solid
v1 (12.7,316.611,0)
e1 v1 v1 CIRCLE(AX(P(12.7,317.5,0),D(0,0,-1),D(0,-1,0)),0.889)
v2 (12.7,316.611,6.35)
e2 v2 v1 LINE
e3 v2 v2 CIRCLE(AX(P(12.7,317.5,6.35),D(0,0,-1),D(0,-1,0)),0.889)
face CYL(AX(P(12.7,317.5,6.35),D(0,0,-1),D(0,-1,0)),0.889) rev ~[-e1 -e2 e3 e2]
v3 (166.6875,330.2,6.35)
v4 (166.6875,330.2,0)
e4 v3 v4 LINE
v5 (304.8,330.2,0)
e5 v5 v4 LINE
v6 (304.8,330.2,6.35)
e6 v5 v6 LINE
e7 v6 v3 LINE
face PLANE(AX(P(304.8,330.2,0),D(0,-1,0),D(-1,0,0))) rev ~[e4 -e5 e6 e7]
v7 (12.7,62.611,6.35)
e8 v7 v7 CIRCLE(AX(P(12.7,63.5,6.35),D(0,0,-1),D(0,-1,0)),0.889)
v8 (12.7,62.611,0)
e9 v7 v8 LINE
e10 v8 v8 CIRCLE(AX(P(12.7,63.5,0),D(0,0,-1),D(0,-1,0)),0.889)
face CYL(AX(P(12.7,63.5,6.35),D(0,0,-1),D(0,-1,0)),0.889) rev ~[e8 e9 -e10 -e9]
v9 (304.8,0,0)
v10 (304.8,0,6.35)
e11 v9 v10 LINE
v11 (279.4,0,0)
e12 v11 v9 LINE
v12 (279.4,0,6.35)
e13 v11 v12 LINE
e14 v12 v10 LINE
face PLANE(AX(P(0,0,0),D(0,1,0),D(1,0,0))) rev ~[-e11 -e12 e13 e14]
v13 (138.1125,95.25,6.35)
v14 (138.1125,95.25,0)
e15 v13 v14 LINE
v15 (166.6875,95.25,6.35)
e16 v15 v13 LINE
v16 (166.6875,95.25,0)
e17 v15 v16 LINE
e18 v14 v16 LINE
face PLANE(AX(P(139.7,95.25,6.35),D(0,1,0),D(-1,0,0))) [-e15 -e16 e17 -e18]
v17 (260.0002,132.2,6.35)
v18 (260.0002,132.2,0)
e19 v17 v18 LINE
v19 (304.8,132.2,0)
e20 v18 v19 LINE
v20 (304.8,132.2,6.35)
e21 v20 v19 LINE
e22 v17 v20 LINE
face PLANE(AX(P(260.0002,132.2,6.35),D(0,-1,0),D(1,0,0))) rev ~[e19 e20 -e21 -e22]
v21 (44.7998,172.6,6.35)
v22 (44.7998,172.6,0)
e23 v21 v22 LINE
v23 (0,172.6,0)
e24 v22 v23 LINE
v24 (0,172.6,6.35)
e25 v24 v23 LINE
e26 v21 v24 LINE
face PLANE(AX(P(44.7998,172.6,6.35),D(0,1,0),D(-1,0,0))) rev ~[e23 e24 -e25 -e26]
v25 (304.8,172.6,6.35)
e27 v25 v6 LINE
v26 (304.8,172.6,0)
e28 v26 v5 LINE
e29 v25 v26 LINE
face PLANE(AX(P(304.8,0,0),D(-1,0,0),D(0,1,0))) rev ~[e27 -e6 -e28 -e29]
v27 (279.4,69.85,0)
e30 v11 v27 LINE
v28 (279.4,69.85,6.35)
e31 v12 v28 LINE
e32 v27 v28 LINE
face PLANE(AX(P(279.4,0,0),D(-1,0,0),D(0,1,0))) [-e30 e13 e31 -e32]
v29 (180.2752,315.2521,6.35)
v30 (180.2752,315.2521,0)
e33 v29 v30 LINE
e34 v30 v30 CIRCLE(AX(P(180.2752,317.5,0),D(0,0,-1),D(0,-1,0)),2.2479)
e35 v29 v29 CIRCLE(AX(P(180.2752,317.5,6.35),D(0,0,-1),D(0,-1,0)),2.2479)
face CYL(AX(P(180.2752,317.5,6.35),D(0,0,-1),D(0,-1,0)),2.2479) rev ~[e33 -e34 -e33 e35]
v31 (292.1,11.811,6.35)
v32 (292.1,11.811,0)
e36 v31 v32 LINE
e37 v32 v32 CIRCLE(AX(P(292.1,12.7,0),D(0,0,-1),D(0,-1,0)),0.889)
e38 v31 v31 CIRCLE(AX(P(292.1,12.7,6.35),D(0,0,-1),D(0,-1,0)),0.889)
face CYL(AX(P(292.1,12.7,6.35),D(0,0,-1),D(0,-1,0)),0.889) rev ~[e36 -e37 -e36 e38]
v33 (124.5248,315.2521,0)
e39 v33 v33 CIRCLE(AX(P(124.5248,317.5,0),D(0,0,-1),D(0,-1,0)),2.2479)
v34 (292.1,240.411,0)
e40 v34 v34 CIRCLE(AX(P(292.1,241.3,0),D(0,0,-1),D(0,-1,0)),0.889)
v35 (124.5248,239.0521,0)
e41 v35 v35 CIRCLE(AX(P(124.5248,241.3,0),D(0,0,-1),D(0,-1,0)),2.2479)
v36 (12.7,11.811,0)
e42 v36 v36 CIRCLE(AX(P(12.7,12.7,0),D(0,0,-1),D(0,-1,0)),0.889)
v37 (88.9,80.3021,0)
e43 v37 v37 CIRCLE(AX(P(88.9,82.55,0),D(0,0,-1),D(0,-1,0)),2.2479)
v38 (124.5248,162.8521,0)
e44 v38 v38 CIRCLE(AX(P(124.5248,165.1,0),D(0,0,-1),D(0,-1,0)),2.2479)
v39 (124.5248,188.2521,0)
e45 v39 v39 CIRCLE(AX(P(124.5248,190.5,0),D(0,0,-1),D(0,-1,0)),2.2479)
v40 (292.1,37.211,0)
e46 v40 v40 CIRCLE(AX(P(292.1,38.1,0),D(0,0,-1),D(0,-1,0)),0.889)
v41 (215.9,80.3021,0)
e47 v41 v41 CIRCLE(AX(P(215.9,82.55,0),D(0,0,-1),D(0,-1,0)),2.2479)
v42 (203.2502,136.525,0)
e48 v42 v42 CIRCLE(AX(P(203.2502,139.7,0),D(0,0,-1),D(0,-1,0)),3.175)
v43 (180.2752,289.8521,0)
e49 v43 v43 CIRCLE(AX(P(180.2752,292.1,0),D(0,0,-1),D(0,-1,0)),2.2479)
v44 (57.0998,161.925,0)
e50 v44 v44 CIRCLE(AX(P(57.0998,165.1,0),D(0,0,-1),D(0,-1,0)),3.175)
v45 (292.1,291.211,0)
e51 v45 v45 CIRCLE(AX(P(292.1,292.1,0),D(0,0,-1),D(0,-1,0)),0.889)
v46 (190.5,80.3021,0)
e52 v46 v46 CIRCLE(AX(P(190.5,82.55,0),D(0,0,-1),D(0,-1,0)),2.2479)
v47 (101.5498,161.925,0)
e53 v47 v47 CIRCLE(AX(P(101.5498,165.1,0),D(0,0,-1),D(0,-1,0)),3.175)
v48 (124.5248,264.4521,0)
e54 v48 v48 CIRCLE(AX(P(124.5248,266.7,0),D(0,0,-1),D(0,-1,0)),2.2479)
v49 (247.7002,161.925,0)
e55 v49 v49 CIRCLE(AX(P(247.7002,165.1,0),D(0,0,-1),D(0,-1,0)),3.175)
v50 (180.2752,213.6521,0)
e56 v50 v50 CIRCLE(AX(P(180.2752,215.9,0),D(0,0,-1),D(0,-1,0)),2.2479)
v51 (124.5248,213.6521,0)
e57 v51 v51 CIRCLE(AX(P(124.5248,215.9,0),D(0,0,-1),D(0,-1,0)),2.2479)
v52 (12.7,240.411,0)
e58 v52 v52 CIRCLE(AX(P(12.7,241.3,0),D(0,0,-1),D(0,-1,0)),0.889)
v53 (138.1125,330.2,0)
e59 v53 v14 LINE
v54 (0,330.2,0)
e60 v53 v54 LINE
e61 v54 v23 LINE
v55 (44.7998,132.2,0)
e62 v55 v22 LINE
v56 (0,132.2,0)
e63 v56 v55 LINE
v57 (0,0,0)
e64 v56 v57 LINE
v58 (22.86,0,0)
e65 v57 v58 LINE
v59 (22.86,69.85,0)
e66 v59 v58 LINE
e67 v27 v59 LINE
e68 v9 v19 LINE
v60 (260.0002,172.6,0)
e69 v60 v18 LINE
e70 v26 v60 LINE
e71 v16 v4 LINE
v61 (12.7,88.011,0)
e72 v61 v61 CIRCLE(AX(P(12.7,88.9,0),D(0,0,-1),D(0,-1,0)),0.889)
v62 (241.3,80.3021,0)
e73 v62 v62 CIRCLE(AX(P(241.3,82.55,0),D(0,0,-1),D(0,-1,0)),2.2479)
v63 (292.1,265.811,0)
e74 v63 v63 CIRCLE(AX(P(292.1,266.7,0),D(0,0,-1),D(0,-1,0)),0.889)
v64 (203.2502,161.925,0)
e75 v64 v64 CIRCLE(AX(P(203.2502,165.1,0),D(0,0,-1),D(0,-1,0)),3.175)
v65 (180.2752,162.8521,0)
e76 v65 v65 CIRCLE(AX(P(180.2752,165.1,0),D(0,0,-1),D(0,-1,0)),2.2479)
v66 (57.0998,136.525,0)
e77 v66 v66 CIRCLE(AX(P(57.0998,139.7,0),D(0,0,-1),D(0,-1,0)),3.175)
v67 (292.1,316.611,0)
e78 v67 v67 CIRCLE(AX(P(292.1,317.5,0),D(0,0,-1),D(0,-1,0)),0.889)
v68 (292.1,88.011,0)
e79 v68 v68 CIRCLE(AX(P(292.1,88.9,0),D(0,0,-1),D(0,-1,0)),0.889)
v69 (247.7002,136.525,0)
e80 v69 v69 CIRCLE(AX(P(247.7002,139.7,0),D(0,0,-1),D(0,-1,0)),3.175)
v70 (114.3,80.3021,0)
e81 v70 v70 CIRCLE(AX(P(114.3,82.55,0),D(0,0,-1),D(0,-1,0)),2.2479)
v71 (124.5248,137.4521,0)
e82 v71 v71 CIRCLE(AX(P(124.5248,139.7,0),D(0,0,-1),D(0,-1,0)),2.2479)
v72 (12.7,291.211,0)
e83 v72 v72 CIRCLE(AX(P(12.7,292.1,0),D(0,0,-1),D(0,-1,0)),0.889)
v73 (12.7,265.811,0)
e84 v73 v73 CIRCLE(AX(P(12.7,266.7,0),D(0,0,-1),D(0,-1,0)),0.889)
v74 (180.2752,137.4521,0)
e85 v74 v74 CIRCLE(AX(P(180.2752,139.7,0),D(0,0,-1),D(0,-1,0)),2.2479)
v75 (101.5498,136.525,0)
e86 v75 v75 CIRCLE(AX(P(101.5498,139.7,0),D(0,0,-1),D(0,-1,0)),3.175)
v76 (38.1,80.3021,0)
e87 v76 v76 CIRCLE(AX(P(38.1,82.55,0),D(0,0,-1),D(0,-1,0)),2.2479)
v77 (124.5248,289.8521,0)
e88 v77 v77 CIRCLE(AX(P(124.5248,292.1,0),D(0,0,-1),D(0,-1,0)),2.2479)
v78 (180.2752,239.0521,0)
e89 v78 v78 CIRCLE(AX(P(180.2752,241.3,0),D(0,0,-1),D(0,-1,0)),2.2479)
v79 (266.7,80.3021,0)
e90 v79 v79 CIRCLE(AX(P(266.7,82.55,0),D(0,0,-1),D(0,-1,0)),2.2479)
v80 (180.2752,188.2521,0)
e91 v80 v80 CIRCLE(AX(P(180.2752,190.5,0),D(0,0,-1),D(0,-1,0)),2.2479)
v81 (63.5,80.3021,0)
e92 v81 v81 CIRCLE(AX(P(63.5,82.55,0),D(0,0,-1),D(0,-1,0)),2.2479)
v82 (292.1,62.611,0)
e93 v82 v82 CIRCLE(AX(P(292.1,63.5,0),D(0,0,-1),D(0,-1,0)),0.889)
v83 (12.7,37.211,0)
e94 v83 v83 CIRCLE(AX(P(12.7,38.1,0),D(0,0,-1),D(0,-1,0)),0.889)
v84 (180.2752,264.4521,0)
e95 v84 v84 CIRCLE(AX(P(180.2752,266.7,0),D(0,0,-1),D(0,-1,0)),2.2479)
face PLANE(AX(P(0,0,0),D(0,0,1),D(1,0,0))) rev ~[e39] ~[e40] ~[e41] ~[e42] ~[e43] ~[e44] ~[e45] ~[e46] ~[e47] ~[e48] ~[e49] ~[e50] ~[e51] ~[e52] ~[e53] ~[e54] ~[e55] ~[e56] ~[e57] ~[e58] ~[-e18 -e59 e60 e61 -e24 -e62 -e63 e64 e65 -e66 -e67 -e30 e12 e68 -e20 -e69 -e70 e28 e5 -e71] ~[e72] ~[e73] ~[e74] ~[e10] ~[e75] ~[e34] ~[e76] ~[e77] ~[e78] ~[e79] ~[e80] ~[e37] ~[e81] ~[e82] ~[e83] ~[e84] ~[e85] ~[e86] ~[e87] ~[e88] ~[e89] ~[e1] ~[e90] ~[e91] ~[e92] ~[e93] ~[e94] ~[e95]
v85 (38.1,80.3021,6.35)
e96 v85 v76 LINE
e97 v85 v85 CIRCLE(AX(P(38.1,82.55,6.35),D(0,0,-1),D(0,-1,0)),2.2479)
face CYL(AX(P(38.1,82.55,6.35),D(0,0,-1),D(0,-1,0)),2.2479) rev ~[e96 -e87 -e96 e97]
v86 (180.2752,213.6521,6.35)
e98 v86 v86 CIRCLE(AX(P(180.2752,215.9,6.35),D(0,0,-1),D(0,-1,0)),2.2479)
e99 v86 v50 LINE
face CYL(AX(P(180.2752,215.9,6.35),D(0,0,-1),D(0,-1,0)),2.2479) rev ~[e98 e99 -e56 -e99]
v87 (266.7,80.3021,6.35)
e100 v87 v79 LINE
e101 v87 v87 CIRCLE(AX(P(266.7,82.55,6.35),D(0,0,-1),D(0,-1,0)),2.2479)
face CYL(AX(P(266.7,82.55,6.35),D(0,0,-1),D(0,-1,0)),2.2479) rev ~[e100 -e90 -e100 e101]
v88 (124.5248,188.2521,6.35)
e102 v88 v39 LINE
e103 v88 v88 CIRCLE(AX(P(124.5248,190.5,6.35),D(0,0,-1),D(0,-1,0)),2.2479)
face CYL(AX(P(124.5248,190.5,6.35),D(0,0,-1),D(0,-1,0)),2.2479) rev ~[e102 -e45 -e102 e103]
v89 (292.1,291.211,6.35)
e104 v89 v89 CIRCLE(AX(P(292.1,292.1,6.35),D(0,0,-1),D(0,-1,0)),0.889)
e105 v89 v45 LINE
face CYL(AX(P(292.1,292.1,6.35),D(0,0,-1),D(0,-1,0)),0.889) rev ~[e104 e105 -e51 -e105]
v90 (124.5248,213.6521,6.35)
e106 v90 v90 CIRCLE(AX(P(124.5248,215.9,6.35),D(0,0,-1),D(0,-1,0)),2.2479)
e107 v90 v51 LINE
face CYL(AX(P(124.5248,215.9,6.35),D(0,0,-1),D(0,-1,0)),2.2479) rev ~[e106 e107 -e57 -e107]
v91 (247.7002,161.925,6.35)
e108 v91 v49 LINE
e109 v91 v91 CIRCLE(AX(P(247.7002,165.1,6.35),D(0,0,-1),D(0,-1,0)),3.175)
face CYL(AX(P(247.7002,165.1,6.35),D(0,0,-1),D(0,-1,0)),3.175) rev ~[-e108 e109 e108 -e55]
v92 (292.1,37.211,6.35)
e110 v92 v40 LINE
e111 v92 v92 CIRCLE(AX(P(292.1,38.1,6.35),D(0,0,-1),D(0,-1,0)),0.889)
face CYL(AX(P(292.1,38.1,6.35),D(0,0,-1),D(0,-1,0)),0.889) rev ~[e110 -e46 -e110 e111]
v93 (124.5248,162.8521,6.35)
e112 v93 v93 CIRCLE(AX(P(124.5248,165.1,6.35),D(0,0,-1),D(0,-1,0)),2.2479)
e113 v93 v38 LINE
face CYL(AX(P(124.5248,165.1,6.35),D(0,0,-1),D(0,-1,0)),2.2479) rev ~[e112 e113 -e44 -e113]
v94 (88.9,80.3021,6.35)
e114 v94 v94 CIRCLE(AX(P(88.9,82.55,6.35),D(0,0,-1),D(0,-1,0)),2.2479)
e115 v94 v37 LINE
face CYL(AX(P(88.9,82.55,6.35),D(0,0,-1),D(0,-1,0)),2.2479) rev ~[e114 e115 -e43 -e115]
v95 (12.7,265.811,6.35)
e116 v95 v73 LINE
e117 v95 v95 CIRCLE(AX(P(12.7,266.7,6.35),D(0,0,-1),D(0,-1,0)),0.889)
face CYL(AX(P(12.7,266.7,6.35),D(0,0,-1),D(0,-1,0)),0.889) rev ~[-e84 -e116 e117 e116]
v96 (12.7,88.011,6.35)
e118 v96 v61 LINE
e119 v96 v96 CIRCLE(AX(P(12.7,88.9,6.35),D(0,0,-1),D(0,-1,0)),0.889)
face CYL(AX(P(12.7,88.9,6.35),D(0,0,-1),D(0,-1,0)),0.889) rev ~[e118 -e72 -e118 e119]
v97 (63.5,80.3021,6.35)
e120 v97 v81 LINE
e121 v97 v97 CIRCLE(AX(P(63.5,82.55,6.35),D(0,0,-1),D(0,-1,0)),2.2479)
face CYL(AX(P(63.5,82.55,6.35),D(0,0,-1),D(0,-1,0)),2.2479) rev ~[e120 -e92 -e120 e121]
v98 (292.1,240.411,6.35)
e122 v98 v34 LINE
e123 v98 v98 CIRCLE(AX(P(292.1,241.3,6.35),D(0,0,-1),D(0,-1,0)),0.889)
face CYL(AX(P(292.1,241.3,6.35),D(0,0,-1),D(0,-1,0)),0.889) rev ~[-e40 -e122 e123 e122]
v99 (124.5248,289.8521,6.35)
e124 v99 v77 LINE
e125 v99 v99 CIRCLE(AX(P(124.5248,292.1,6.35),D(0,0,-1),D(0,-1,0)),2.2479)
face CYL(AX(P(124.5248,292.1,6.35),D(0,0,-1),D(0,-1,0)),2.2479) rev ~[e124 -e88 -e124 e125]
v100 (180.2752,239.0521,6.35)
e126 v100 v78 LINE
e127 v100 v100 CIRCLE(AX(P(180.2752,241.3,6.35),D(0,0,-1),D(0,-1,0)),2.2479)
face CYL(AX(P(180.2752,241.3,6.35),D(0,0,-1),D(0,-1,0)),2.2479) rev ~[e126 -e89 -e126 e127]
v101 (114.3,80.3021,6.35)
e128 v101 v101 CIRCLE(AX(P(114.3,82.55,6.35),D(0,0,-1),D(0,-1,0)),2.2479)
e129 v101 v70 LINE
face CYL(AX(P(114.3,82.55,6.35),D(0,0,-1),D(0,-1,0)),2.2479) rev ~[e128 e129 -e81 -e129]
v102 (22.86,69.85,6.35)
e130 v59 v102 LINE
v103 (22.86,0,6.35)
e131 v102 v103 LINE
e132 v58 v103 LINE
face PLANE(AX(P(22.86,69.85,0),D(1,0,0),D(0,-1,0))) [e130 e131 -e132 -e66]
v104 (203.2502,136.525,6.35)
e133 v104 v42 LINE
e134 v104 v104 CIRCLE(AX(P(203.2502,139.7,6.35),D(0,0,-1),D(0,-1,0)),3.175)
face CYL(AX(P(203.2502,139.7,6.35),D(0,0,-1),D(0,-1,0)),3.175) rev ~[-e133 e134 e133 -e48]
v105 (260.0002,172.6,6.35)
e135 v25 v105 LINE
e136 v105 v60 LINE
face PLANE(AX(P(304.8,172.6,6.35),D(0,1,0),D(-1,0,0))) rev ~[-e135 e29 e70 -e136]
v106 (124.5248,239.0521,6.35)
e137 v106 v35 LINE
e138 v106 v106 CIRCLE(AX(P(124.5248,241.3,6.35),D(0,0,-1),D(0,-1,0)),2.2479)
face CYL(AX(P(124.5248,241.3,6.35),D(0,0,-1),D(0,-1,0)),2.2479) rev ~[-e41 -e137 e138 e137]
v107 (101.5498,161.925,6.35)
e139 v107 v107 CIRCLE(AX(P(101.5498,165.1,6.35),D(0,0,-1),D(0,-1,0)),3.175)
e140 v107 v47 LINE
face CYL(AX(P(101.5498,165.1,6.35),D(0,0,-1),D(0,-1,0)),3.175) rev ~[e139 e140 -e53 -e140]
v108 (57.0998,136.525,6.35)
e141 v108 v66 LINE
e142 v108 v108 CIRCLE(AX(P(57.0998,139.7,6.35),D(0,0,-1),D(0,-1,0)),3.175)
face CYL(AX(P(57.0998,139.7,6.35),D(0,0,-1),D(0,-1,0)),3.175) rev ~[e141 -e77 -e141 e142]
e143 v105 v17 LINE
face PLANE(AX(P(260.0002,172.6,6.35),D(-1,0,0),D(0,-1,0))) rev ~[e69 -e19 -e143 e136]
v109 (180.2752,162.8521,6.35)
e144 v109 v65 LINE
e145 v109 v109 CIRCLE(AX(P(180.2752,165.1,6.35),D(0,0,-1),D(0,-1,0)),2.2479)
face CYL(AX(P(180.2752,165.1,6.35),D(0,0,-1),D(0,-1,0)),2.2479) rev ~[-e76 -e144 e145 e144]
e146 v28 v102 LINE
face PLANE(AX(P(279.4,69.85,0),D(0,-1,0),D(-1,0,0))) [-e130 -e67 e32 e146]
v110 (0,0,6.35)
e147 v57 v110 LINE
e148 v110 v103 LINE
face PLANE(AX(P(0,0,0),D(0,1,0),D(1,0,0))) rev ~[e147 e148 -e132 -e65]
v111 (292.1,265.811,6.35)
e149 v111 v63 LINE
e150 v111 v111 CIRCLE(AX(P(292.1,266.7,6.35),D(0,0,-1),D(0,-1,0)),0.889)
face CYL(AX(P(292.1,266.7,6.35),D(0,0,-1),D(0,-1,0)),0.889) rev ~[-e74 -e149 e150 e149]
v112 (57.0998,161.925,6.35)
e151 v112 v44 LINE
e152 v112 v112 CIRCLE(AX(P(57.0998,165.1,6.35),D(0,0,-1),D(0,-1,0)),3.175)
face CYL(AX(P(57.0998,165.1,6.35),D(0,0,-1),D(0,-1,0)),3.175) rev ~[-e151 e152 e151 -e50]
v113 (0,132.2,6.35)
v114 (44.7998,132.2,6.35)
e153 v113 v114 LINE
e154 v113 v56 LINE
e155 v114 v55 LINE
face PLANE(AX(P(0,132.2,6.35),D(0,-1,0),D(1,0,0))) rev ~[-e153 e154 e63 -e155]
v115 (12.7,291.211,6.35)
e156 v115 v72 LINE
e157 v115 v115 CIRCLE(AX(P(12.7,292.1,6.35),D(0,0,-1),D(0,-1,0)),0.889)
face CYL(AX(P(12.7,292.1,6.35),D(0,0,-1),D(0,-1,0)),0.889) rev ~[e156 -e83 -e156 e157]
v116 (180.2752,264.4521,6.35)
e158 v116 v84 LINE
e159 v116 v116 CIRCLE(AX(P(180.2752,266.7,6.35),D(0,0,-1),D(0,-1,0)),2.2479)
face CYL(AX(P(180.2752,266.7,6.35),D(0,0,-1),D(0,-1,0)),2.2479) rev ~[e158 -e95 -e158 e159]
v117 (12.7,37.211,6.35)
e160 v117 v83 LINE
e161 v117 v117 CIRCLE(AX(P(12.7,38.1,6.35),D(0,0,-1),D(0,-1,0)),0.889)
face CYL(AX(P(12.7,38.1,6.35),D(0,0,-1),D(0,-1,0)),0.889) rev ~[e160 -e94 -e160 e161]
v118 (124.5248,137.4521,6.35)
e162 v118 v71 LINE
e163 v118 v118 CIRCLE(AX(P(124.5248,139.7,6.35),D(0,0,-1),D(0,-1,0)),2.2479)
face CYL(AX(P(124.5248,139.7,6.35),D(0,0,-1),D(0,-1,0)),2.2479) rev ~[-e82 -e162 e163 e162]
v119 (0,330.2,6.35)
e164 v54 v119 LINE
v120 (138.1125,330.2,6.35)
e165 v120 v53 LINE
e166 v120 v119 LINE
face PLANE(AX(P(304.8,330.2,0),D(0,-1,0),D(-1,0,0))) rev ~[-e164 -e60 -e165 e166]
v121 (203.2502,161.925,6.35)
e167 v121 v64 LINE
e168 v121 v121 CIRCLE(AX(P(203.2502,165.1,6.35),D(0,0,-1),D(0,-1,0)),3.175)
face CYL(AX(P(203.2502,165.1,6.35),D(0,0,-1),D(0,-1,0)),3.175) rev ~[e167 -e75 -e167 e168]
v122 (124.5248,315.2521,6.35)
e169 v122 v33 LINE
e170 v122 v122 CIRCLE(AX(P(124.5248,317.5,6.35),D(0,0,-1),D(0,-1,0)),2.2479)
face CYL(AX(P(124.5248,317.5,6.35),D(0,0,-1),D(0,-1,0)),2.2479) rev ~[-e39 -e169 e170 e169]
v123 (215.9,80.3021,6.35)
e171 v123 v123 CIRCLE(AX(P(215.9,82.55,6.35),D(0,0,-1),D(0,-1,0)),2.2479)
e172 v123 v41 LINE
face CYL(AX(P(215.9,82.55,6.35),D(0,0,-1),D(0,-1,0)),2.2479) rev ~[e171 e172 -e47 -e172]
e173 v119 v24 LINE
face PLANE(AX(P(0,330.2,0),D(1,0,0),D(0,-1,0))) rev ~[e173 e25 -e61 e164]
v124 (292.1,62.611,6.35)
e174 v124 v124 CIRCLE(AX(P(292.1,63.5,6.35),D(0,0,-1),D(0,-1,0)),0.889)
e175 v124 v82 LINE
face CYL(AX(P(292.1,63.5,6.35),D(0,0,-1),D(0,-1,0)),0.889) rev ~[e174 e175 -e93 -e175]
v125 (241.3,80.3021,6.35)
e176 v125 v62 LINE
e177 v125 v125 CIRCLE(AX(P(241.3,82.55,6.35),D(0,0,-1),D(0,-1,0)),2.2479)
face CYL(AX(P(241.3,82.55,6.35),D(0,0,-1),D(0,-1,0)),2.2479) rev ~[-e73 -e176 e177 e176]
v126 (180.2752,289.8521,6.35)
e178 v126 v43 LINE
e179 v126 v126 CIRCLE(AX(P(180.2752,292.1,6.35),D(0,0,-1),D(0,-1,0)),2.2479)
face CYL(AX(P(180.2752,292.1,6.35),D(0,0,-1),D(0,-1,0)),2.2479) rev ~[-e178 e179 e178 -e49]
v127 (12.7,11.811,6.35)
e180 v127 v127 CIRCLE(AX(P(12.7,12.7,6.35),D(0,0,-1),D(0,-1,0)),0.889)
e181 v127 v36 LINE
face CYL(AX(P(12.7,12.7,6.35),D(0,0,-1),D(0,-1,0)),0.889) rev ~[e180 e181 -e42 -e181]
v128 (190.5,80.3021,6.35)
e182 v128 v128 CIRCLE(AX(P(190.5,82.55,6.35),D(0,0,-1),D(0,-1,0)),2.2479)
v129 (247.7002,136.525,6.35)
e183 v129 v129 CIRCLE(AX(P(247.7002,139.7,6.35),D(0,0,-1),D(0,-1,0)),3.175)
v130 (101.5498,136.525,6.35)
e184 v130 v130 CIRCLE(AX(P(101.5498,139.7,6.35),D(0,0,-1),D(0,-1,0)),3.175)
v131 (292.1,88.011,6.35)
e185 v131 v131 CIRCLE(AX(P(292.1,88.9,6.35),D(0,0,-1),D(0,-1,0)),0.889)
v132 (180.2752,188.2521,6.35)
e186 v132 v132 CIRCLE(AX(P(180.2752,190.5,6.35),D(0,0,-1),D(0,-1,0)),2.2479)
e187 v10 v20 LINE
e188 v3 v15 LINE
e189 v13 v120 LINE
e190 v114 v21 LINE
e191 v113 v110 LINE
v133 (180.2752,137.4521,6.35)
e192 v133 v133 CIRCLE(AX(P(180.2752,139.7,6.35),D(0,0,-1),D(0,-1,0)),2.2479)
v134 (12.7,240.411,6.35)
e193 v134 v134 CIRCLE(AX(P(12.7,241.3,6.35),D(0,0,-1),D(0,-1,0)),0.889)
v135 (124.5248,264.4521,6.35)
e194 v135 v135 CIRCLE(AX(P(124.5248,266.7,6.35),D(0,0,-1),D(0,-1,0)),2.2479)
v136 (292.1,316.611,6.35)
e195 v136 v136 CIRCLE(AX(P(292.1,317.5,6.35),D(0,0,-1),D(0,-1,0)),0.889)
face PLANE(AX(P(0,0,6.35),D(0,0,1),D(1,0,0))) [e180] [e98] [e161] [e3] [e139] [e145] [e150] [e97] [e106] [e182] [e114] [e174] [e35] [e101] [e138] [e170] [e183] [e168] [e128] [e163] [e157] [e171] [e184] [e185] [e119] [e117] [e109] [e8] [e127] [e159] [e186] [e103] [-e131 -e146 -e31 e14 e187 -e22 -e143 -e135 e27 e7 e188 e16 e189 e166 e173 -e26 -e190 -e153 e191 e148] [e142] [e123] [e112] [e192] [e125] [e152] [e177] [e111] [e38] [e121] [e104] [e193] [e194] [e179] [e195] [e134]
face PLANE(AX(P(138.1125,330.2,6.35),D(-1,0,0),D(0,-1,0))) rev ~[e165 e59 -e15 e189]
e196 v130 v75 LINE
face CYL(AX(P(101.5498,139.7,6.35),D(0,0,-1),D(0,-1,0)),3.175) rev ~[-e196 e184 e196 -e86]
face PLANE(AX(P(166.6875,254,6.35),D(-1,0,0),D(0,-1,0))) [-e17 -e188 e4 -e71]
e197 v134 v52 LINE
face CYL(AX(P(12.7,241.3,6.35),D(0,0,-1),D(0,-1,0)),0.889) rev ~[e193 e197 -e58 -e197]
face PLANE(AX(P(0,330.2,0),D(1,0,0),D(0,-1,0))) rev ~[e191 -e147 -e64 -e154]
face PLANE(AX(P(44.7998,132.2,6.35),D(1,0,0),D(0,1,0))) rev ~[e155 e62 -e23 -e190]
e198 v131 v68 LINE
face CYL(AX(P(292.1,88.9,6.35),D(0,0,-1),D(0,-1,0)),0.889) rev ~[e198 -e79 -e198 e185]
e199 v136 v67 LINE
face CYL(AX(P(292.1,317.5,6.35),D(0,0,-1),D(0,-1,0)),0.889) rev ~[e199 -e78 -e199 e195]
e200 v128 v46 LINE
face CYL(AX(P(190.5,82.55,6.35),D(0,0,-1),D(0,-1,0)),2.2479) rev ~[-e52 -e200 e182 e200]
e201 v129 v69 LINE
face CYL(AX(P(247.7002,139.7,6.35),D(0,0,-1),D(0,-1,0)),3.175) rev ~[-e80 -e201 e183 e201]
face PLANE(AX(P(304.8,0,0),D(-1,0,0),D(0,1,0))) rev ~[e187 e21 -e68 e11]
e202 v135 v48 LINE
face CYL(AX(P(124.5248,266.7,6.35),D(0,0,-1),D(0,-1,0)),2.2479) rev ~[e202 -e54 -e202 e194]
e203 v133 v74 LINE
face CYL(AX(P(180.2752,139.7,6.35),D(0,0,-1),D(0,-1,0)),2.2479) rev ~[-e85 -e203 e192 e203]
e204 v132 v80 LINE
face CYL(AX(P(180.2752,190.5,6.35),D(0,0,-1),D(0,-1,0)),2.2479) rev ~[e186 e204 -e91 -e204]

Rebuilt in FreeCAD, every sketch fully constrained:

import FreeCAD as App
import Part
import Sketcher
Q = App.Units.Quantity

doc = App.newDocument("Part")
body = doc.addObject("PartDesign::Body", "Body")

sketch1 = body.newObject("Sketcher::SketchObject", "Sketch")
sketch1.AttachmentSupport = (doc.getObject("XY_Plane"), [""])
sketch1.MapMode = "FlatFace"
sketch1.addGeometry([
    Part.LineSegment(App.Vector(0, 330.2, 0), App.Vector(0, 0, 0)),
    Part.LineSegment(App.Vector(0, 0, 0), App.Vector(304.8, 0, 0)),
    Part.LineSegment(App.Vector(304.8, 0, 0), App.Vector(304.8, 330.2, 0)),
    Part.LineSegment(App.Vector(304.8, 330.2, 0), App.Vector(0, 330.2, 0)),
], False)
sketch1.addConstraint([
    Sketcher.Constraint("Coincident", 0, 2, 1, 1),
    Sketcher.Constraint("Coincident", 1, 2, 2, 1),
    Sketcher.Constraint("Coincident", 2, 2, 3, 1),
    Sketcher.Constraint("Coincident", 3, 2, 0, 1),
    Sketcher.Constraint("Vertical", 0),
    Sketcher.Constraint("Horizontal", 1),
    Sketcher.Constraint("Vertical", 2),
    Sketcher.Constraint("Horizontal", 3),
    Sketcher.Constraint("Coincident", 0, 2, -1, 1),
    Sketcher.Constraint("DistanceX", 1, 1, 1, 2, Q("12 in")),
    Sketcher.Constraint("DistanceY", 0, 2, 0, 1, Q("13 in")),
])
pad1 = body.newObject("PartDesign::Pad", "Pad")
pad1.Profile = sketch1
pad1.Length = Q("0.25 in")

sketch2 = body.newObject("Sketcher::SketchObject", "Sketch001")
sketch2.AttachmentSupport = (doc.getObject("XY_Plane"), [""])
sketch2.MapMode = "FlatFace"
sketch2.AttachmentOffset = App.Placement(App.Vector(0, 0, 0.25 * 25.4), App.Rotation())
sketch2.addGeometry([
    Part.LineSegment(App.Vector(0, 172.6, 0), App.Vector(0, 132.2, 0)),
    Part.LineSegment(App.Vector(0, 132.2, 0), App.Vector(44.7998, 132.2, 0)),
    Part.LineSegment(App.Vector(44.7998, 132.2, 0), App.Vector(44.7998, 172.6, 0)),
    Part.LineSegment(App.Vector(44.7998, 172.6, 0), App.Vector(0, 172.6, 0)),
    Part.LineSegment(App.Vector(304.8, 132.2, 0), App.Vector(304.8, 172.6, 0)),
    Part.LineSegment(App.Vector(304.8, 172.6, 0), App.Vector(260.0002, 172.6, 0)),
    Part.LineSegment(App.Vector(260.0002, 172.6, 0), App.Vector(260.0002, 132.2, 0)),
    Part.LineSegment(App.Vector(260.0002, 132.2, 0), App.Vector(304.8, 132.2, 0)),
], False)
sketch2.addConstraint([
    Sketcher.Constraint("Coincident", 0, 2, 1, 1),
    Sketcher.Constraint("Coincident", 1, 2, 2, 1),
    Sketcher.Constraint("Coincident", 2, 2, 3, 1),
    Sketcher.Constraint("Coincident", 3, 2, 0, 1),
    Sketcher.Constraint("Coincident", 4, 2, 5, 1),
    Sketcher.Constraint("Coincident", 5, 2, 6, 1),
    Sketcher.Constraint("Coincident", 6, 2, 7, 1),
    Sketcher.Constraint("Coincident", 7, 2, 4, 1),
    Sketcher.Constraint("Vertical", 0),
    Sketcher.Constraint("Horizontal", 1),
    Sketcher.Constraint("Vertical", 2),
    Sketcher.Constraint("Horizontal", 3),
    Sketcher.Constraint("Vertical", 4),
    Sketcher.Constraint("Horizontal", 5),
    Sketcher.Constraint("Vertical", 6),
    Sketcher.Constraint("Horizontal", 7),
    Sketcher.Constraint("PointOnObject", 0, 2, -2),
    Sketcher.Constraint("Horizontal", 3, 2, 4, 2),
    Sketcher.Constraint("Horizontal", 1, 2, 6, 2),
    Sketcher.Constraint("Equal", 3, 5),
    Sketcher.Constraint("DistanceX", -1, 1, 4, 2, Q("12 in")),
    Sketcher.Constraint("DistanceX", 1, 1, 1, 2, Q("44.7998 mm")),
    Sketcher.Constraint("DistanceY", 0, 2, 0, 1, Q("40.4 mm")),
    Sketcher.Constraint("DistanceY", -1, 1, 0, 2, Q("132.2 mm")),
])
pocket1 = body.newObject("PartDesign::Pocket", "Pocket")
pocket1.Profile = sketch2
pocket1.Length = Q("0.25 in")

sketch3 = body.newObject("Sketcher::SketchObject", "Sketch002")
sketch3.AttachmentSupport = (doc.getObject("XY_Plane"), [""])
sketch3.MapMode = "FlatFace"
sketch3.AttachmentOffset = App.Placement(App.Vector(0, 0, 0.25 * 25.4), App.Rotation())
sketch3.addGeometry([
    Part.Circle(App.Vector(57.0998, 165.1, 0), App.Vector(0, 0, 1), 3.175),
    Part.Circle(App.Vector(57.0998, 139.7, 0), App.Vector(0, 0, 1), 3.175),
    Part.Circle(App.Vector(101.5498, 139.7, 0), App.Vector(0, 0, 1), 3.175),
    Part.Circle(App.Vector(101.5498, 165.1, 0), App.Vector(0, 0, 1), 3.175),
    Part.Circle(App.Vector(203.2502, 165.1, 0), App.Vector(0, 0, 1), 3.175),
    Part.Circle(App.Vector(203.2502, 139.7, 0), App.Vector(0, 0, 1), 3.175),
    Part.Circle(App.Vector(247.7002, 139.7, 0), App.Vector(0, 0, 1), 3.175),
    Part.Circle(App.Vector(247.7002, 165.1, 0), App.Vector(0, 0, 1), 3.175),
], False)
sketch3.addConstraint([
    Sketcher.Constraint("Equal", 0, 1),
    Sketcher.Constraint("Equal", 1, 2),
    Sketcher.Constraint("Equal", 2, 3),
    Sketcher.Constraint("Equal", 3, 4),
    Sketcher.Constraint("Equal", 4, 5),
    Sketcher.Constraint("Equal", 5, 6),
    Sketcher.Constraint("Equal", 6, 7),
    Sketcher.Constraint("Horizontal", 1, 3, 2, 3),
    Sketcher.Constraint("Horizontal", 0, 3, 3, 3),
    Sketcher.Constraint("Horizontal", 3, 3, 4, 3),
    Sketcher.Constraint("Horizontal", 2, 3, 5, 3),
    Sketcher.Constraint("Horizontal", 5, 3, 6, 3),
    Sketcher.Constraint("Horizontal", 4, 3, 7, 3),
    Sketcher.Constraint("Vertical", 0, 3, 1, 3),
    Sketcher.Constraint("Vertical", 2, 3, 3, 3),
    Sketcher.Constraint("Vertical", 4, 3, 5, 3),
    Sketcher.Constraint("Vertical", 6, 3, 7, 3),
    Sketcher.Constraint("Diameter", 0, Q("0.25 in")),
    Sketcher.Constraint("DistanceY", 1, 3, 0, 3, Q("1 in")),
    Sketcher.Constraint("DistanceY", -1, 1, 0, 3, Q("6.5 in")),
    Sketcher.Constraint("DistanceX", 1, 3, 2, 3, Q("1.75 in")),
    Sketcher.Constraint("DistanceX", 5, 3, 6, 3, Q("1.75 in")),
    Sketcher.Constraint("DistanceX", -1, 1, 0, 3, Q("57.0998 mm")),
    Sketcher.Constraint("DistanceX", -1, 1, 4, 3, Q("203.2502 mm")),
])
doc.recompute()
hole = body.newObject("PartDesign::Hole", "Hole")
hole.Profile = sketch3
hole.ThreadType = "None"
hole.Diameter = Q("0.25 in")
hole.DepthType = "Dimension"
hole.Depth = Q("1 in")
hole.DrillPoint = "Angled"
hole.DrillPointAngle = 118

sketch4 = body.newObject("Sketcher::SketchObject", "Sketch003")
sketch4.AttachmentSupport = (doc.getObject("XY_Plane"), [""])
sketch4.MapMode = "FlatFace"
sketch4.AttachmentOffset = App.Placement(App.Vector(0, 0, 0.25 * 25.4), App.Rotation())
sketch4.addGeometry([
    Part.Circle(App.Vector(12.7, 317.5, 0), App.Vector(0, 0, 1), 0.889),
    Part.Circle(App.Vector(12.7, 292.1, 0), App.Vector(0, 0, 1), 0.889),
    Part.Circle(App.Vector(12.7, 266.7, 0), App.Vector(0, 0, 1), 0.889),
    Part.Circle(App.Vector(12.7, 241.3, 0), App.Vector(0, 0, 1), 0.889),
    Part.Circle(App.Vector(12.7, 88.9, 0), App.Vector(0, 0, 1), 0.889),
    Part.Circle(App.Vector(12.7, 63.5, 0), App.Vector(0, 0, 1), 0.889),
    Part.Circle(App.Vector(12.7, 38.1, 0), App.Vector(0, 0, 1), 0.889),
    Part.Circle(App.Vector(12.7, 12.7, 0), App.Vector(0, 0, 1), 0.889),
    Part.Circle(App.Vector(292.1, 88.9, 0), App.Vector(0, 0, 1), 0.889),
    Part.Circle(App.Vector(292.1, 63.5, 0), App.Vector(0, 0, 1), 0.889),
    Part.Circle(App.Vector(292.1, 38.1, 0), App.Vector(0, 0, 1), 0.889),
    Part.Circle(App.Vector(292.1, 12.7, 0), App.Vector(0, 0, 1), 0.889),
    Part.Circle(App.Vector(292.1, 241.3, 0), App.Vector(0, 0, 1), 0.889),
    Part.Circle(App.Vector(292.1, 266.7, 0), App.Vector(0, 0, 1), 0.889),
    Part.Circle(App.Vector(292.1, 292.1, 0), App.Vector(0, 0, 1), 0.889),
    Part.Circle(App.Vector(292.1, 317.5, 0), App.Vector(0, 0, 1), 0.889),
], False)
sketch4.addConstraint([
    Sketcher.Constraint("Equal", 0, 1),
    Sketcher.Constraint("Equal", 1, 2),
    Sketcher.Constraint("Equal", 2, 3),
    Sketcher.Constraint("Equal", 3, 4),
    Sketcher.Constraint("Equal", 4, 5),
    Sketcher.Constraint("Equal", 5, 6),
    Sketcher.Constraint("Equal", 6, 7),
    Sketcher.Constraint("Equal", 7, 8),
    Sketcher.Constraint("Equal", 8, 9),
    Sketcher.Constraint("Equal", 9, 10),
    Sketcher.Constraint("Equal", 10, 11),
    Sketcher.Constraint("Equal", 11, 12),
    Sketcher.Constraint("Equal", 12, 13),
    Sketcher.Constraint("Equal", 13, 14),
    Sketcher.Constraint("Equal", 14, 15),
    Sketcher.Constraint("Horizontal", 4, 3, 8, 3),
    Sketcher.Constraint("Horizontal", 5, 3, 9, 3),
    Sketcher.Constraint("Horizontal", 6, 3, 10, 3),
    Sketcher.Constraint("Horizontal", 7, 3, 11, 3),
    Sketcher.Constraint("Horizontal", 3, 3, 12, 3),
    Sketcher.Constraint("Horizontal", 2, 3, 13, 3),
    Sketcher.Constraint("Horizontal", 1, 3, 14, 3),
    Sketcher.Constraint("Horizontal", 0, 3, 15, 3),
    Sketcher.Constraint("Vertical", 0, 3, 1, 3),
    Sketcher.Constraint("Vertical", 1, 3, 2, 3),
    Sketcher.Constraint("Vertical", 2, 3, 3, 3),
    Sketcher.Constraint("Vertical", 3, 3, 4, 3),
    Sketcher.Constraint("Vertical", 4, 3, 5, 3),
    Sketcher.Constraint("Vertical", 5, 3, 6, 3),
    Sketcher.Constraint("Vertical", 6, 3, 7, 3),
    Sketcher.Constraint("Vertical", 8, 3, 9, 3),
    Sketcher.Constraint("Vertical", 9, 3, 10, 3),
    Sketcher.Constraint("Vertical", 10, 3, 11, 3),
    Sketcher.Constraint("Vertical", 11, 3, 12, 3),
    Sketcher.Constraint("Vertical", 12, 3, 13, 3),
    Sketcher.Constraint("Vertical", 13, 3, 14, 3),
    Sketcher.Constraint("Vertical", 14, 3, 15, 3),
    Sketcher.Constraint("Diameter", 0, Q("0.07 in")),
    Sketcher.Constraint("DistanceY", 1, 3, 0, 3, Q("1 in")),
    Sketcher.Constraint("DistanceY", 2, 3, 1, 3, Q("1 in")),
    Sketcher.Constraint("DistanceY", 3, 3, 2, 3, Q("1 in")),
    Sketcher.Constraint("DistanceY", 4, 3, 3, 3, Q("6 in")),
    Sketcher.Constraint("DistanceY", 5, 3, 4, 3, Q("1 in")),
    Sketcher.Constraint("DistanceY", 6, 3, 5, 3, Q("1 in")),
    Sketcher.Constraint("DistanceY", 7, 3, 6, 3, Q("1 in")),
    Sketcher.Constraint("DistanceX", 4, 3, 8, 3, Q("11 in")),
    Sketcher.Constraint("DistanceX", -1, 1, 0, 3, Q("0.5 in")),
    Sketcher.Constraint("DistanceY", -1, 1, 0, 3, Q("12.5 in")),
])
doc.recompute()
hole2 = body.newObject("PartDesign::Hole", "Hole001")
hole2.Profile = sketch4
hole2.ThreadType = "None"
hole2.Diameter = Q("0.07 in")
hole2.DepthType = "Dimension"
hole2.Depth = Q("1 in")
hole2.DrillPoint = "Angled"
hole2.DrillPointAngle = 118

sketch5 = body.newObject("Sketcher::SketchObject", "Sketch004")
sketch5.AttachmentSupport = (doc.getObject("XY_Plane"), [""])
sketch5.MapMode = "FlatFace"
sketch5.AttachmentOffset = App.Placement(App.Vector(0, 0, 0.25 * 25.4), App.Rotation())
sketch5.addGeometry([
    Part.LineSegment(App.Vector(165.1, 254, 0), App.Vector(165.1, 330.2, 0)),
    Part.LineSegment(App.Vector(165.1, 330.2, 0), App.Vector(139.7, 330.2, 0)),
    Part.LineSegment(App.Vector(139.7, 330.2, 0), App.Vector(139.7, 254, 0)),
    Part.LineSegment(App.Vector(139.7, 254, 0), App.Vector(165.1, 254, 0)),
], False)
sketch5.addConstraint([
    Sketcher.Constraint("Coincident", 0, 2, 1, 1),
    Sketcher.Constraint("Coincident", 1, 2, 2, 1),
    Sketcher.Constraint("Coincident", 2, 2, 3, 1),
    Sketcher.Constraint("Coincident", 3, 2, 0, 1),
    Sketcher.Constraint("Vertical", 0),
    Sketcher.Constraint("Horizontal", 1),
    Sketcher.Constraint("Vertical", 2),
    Sketcher.Constraint("Horizontal", 3),
    Sketcher.Constraint("DistanceY", 0, 1, 0, 2, Q("3 in")),
    Sketcher.Constraint("DistanceX", 1, 2, 1, 1, Q("1 in")),
    Sketcher.Constraint("DistanceY", -1, 1, 0, 2, Q("13 in")),
    Sketcher.Constraint("DistanceX", -1, 1, 0, 2, Q("6.5 in")),
])
pocket2 = body.newObject("PartDesign::Pocket", "Pocket001")
pocket2.Profile = sketch5
pocket2.Length = Q("0.25 in")

sketch6 = body.newObject("Sketcher::SketchObject", "Sketch005")
sketch6.AttachmentSupport = (doc.getObject("XY_Plane"), [""])
sketch6.MapMode = "FlatFace"
sketch6.AttachmentOffset = App.Placement(App.Vector(0, 0, 0.25 * 25.4), App.Rotation())
sketch6.addGeometry([
    Part.LineSegment(App.Vector(166.6875, 254, 0), App.Vector(166.6875, 330.2, 0)),
    Part.LineSegment(App.Vector(166.6875, 330.2, 0), App.Vector(165.1, 330.2, 0)),
    Part.LineSegment(App.Vector(165.1, 330.2, 0), App.Vector(165.1, 254, 0)),
    Part.LineSegment(App.Vector(165.1, 254, 0), App.Vector(166.6875, 254, 0)),
    Part.LineSegment(App.Vector(139.7, 254, 0), App.Vector(139.7, 330.2, 0)),
    Part.LineSegment(App.Vector(139.7, 330.2, 0), App.Vector(138.1125, 330.2, 0)),
    Part.LineSegment(App.Vector(138.1125, 330.2, 0), App.Vector(138.1125, 254, 0)),
    Part.LineSegment(App.Vector(138.1125, 254, 0), App.Vector(139.7, 254, 0)),
], False)
sketch6.addConstraint([
    Sketcher.Constraint("Coincident", 0, 2, 1, 1),
    Sketcher.Constraint("Coincident", 1, 2, 2, 1),
    Sketcher.Constraint("Coincident", 2, 2, 3, 1),
    Sketcher.Constraint("Coincident", 3, 2, 0, 1),
    Sketcher.Constraint("Coincident", 4, 2, 5, 1),
    Sketcher.Constraint("Coincident", 5, 2, 6, 1),
    Sketcher.Constraint("Coincident", 6, 2, 7, 1),
    Sketcher.Constraint("Coincident", 7, 2, 4, 1),
    Sketcher.Constraint("Vertical", 0),
    Sketcher.Constraint("Horizontal", 1),
    Sketcher.Constraint("Vertical", 2),
    Sketcher.Constraint("Horizontal", 3),
    Sketcher.Constraint("Vertical", 4),
    Sketcher.Constraint("Horizontal", 5),
    Sketcher.Constraint("Vertical", 6),
    Sketcher.Constraint("Horizontal", 7),
    Sketcher.Constraint("Horizontal", 1, 2, 4, 2),
    Sketcher.Constraint("Horizontal", 3, 2, 6, 2),
    Sketcher.Constraint("Equal", 3, 5),
    Sketcher.Constraint("DistanceX", 1, 2, 1, 1, Q("0.0625 in")),
    Sketcher.Constraint("DistanceY", 0, 1, 0, 2, Q("3 in")),
    Sketcher.Constraint("DistanceY", -1, 1, 0, 2, Q("13 in")),
    Sketcher.Constraint("DistanceX", 4, 2, 1, 2, Q("1 in")),
    Sketcher.Constraint("DistanceX", -1, 1, 1, 2, Q("6.5 in")),
])
pocket3 = body.newObject("PartDesign::Pocket", "Pocket002")
pocket3.Profile = sketch6
pocket3.Length = Q("0.25 in")

sketch7 = body.newObject("Sketcher::SketchObject", "Sketch006")
sketch7.AttachmentSupport = (doc.getObject("XY_Plane"), [""])
sketch7.MapMode = "FlatFace"
sketch7.AttachmentOffset = App.Placement(App.Vector(0, 0, 0.25 * 25.4), App.Rotation())
sketch7.addGeometry([
    Part.LineSegment(App.Vector(165.1, 95.25, 0), App.Vector(165.1, 196.85, 0)),
    Part.LineSegment(App.Vector(165.1, 196.85, 0), App.Vector(139.7, 196.85, 0)),
    Part.LineSegment(App.Vector(139.7, 196.85, 0), App.Vector(139.7, 95.25, 0)),
    Part.LineSegment(App.Vector(139.7, 95.25, 0), App.Vector(165.1, 95.25, 0)),
], False)
sketch7.addConstraint([
    Sketcher.Constraint("Coincident", 0, 2, 1, 1),
    Sketcher.Constraint("Coincident", 1, 2, 2, 1),
    Sketcher.Constraint("Coincident", 2, 2, 3, 1),
    Sketcher.Constraint("Coincident", 3, 2, 0, 1),
    Sketcher.Constraint("Vertical", 0),
    Sketcher.Constraint("Horizontal", 1),
    Sketcher.Constraint("Vertical", 2),
    Sketcher.Constraint("Horizontal", 3),
    Sketcher.Constraint("DistanceY", 0, 1, 0, 2, Q("4 in")),
    Sketcher.Constraint("DistanceX", 1, 2, 1, 1, Q("1 in")),
    Sketcher.Constraint("DistanceY", -1, 1, 2, 2, Q("3.75 in")),
    Sketcher.Constraint("DistanceX", -1, 1, 0, 2, Q("6.5 in")),
])
pocket4 = body.newObject("PartDesign::Pocket", "Pocket003")
pocket4.Profile = sketch7
pocket4.Length = Q("0.25 in")

sketch8 = body.newObject("Sketcher::SketchObject", "Sketch007")
sketch8.AttachmentSupport = (doc.getObject("XY_Plane"), [""])
sketch8.MapMode = "FlatFace"
sketch8.AttachmentOffset = App.Placement(App.Vector(0, 0, 0.25 * 25.4), App.Rotation())
sketch8.addGeometry([
    Part.LineSegment(App.Vector(166.6875, 330.2, 0), App.Vector(138.1125, 330.2, 0)),
    Part.LineSegment(App.Vector(138.1125, 330.2, 0), App.Vector(138.1125, 95.25, 0)),
    Part.LineSegment(App.Vector(138.1125, 95.25, 0), App.Vector(166.6875, 95.25, 0)),
    Part.LineSegment(App.Vector(166.6875, 95.25, 0), App.Vector(166.6875, 330.2, 0)),
], False)
sketch8.addConstraint([
    Sketcher.Constraint("Coincident", 0, 2, 1, 1),
    Sketcher.Constraint("Coincident", 1, 2, 2, 1),
    Sketcher.Constraint("Coincident", 2, 2, 3, 1),
    Sketcher.Constraint("Coincident", 3, 2, 0, 1),
    Sketcher.Constraint("Horizontal", 0),
    Sketcher.Constraint("Vertical", 1),
    Sketcher.Constraint("Horizontal", 2),
    Sketcher.Constraint("Vertical", 3),
    Sketcher.Constraint("DistanceY", -1, 1, 0, 2, Q("13 in")),
    Sketcher.Constraint("DistanceY", 1, 2, 1, 1, Q("9.25 in")),
    Sketcher.Constraint("DistanceX", 0, 2, 0, 1, Q("1.125 in")),
    Sketcher.Constraint("DistanceX", -1, 1, 0, 2, Q("5.4375 in")),
])
pocket5 = body.newObject("PartDesign::Pocket", "Pocket004")
pocket5.Profile = sketch8
pocket5.Length = Q("0.25 in")

sketch9 = body.newObject("Sketcher::SketchObject", "Sketch008")
sketch9.AttachmentSupport = (doc.getObject("XY_Plane"), [""])
sketch9.MapMode = "FlatFace"
sketch9.AttachmentOffset = App.Placement(App.Vector(0, 0, 0.25 * 25.4), App.Rotation())
sketch9.addGeometry([
    Part.Circle(App.Vector(124.5248, 317.5, 0), App.Vector(0, 0, 1), 2.2479),
    Part.Circle(App.Vector(124.5248, 292.1, 0), App.Vector(0, 0, 1), 2.2479),
    Part.Circle(App.Vector(124.5248, 266.7, 0), App.Vector(0, 0, 1), 2.2479),
    Part.Circle(App.Vector(124.5248, 241.3, 0), App.Vector(0, 0, 1), 2.2479),
    Part.Circle(App.Vector(124.5248, 215.9, 0), App.Vector(0, 0, 1), 2.2479),
    Part.Circle(App.Vector(124.5248, 190.5, 0), App.Vector(0, 0, 1), 2.2479),
    Part.Circle(App.Vector(124.5248, 165.1, 0), App.Vector(0, 0, 1), 2.2479),
    Part.Circle(App.Vector(124.5248, 139.7, 0), App.Vector(0, 0, 1), 2.2479),
    Part.Circle(App.Vector(180.2752, 139.7, 0), App.Vector(0, 0, 1), 2.2479),
    Part.Circle(App.Vector(180.2752, 165.1, 0), App.Vector(0, 0, 1), 2.2479),
    Part.Circle(App.Vector(180.2752, 190.5, 0), App.Vector(0, 0, 1), 2.2479),
    Part.Circle(App.Vector(180.2752, 215.9, 0), App.Vector(0, 0, 1), 2.2479),
    Part.Circle(App.Vector(180.2752, 241.3, 0), App.Vector(0, 0, 1), 2.2479),
    Part.Circle(App.Vector(180.2752, 266.7, 0), App.Vector(0, 0, 1), 2.2479),
    Part.Circle(App.Vector(180.2752, 292.1, 0), App.Vector(0, 0, 1), 2.2479),
    Part.Circle(App.Vector(180.2752, 317.5, 0), App.Vector(0, 0, 1), 2.2479),
], False)
sketch9.addConstraint([
    Sketcher.Constraint("Equal", 0, 1),
    Sketcher.Constraint("Equal", 1, 2),
    Sketcher.Constraint("Equal", 2, 3),
    Sketcher.Constraint("Equal", 3, 4),
    Sketcher.Constraint("Equal", 4, 5),
    Sketcher.Constraint("Equal", 5, 6),
    Sketcher.Constraint("Equal", 6, 7),
    Sketcher.Constraint("Equal", 7, 8),
    Sketcher.Constraint("Equal", 8, 9),
    Sketcher.Constraint("Equal", 9, 10),
    Sketcher.Constraint("Equal", 10, 11),
    Sketcher.Constraint("Equal", 11, 12),
    Sketcher.Constraint("Equal", 12, 13),
    Sketcher.Constraint("Equal", 13, 14),
    Sketcher.Constraint("Equal", 14, 15),
    Sketcher.Constraint("Horizontal", 7, 3, 8, 3),
    Sketcher.Constraint("Horizontal", 6, 3, 9, 3),
    Sketcher.Constraint("Horizontal", 5, 3, 10, 3),
    Sketcher.Constraint("Horizontal", 4, 3, 11, 3),
    Sketcher.Constraint("Horizontal", 3, 3, 12, 3),
    Sketcher.Constraint("Horizontal", 2, 3, 13, 3),
    Sketcher.Constraint("Horizontal", 1, 3, 14, 3),
    Sketcher.Constraint("Horizontal", 0, 3, 15, 3),
    Sketcher.Constraint("Vertical", 0, 3, 1, 3),
    Sketcher.Constraint("Vertical", 1, 3, 2, 3),
    Sketcher.Constraint("Vertical", 2, 3, 3, 3),
    Sketcher.Constraint("Vertical", 3, 3, 4, 3),
    Sketcher.Constraint("Vertical", 4, 3, 5, 3),
    Sketcher.Constraint("Vertical", 5, 3, 6, 3),
    Sketcher.Constraint("Vertical", 6, 3, 7, 3),
    Sketcher.Constraint("Vertical", 8, 3, 9, 3),
    Sketcher.Constraint("Vertical", 9, 3, 10, 3),
    Sketcher.Constraint("Vertical", 10, 3, 11, 3),
    Sketcher.Constraint("Vertical", 11, 3, 12, 3),
    Sketcher.Constraint("Vertical", 12, 3, 13, 3),
    Sketcher.Constraint("Vertical", 13, 3, 14, 3),
    Sketcher.Constraint("Vertical", 14, 3, 15, 3),
    Sketcher.Constraint("Diameter", 0, Q("0.177 in")),
    Sketcher.Constraint("DistanceY", 1, 3, 0, 3, Q("1 in")),
    Sketcher.Constraint("DistanceY", 2, 3, 1, 3, Q("1 in")),
    Sketcher.Constraint("DistanceY", 3, 3, 2, 3, Q("1 in")),
    Sketcher.Constraint("DistanceY", 4, 3, 3, 3, Q("1 in")),
    Sketcher.Constraint("DistanceY", 5, 3, 4, 3, Q("1 in")),
    Sketcher.Constraint("DistanceY", 6, 3, 5, 3, Q("1 in")),
    Sketcher.Constraint("DistanceY", 7, 3, 6, 3, Q("1 in")),
    Sketcher.Constraint("DistanceY", -1, 1, 0, 3, Q("12.5 in")),
    Sketcher.Constraint("DistanceX", 7, 3, 8, 3, Q("2.1949 in")),
    Sketcher.Constraint("DistanceX", -1, 1, 0, 3, Q("124.5248 mm")),
])
doc.recompute()
hole3 = body.newObject("PartDesign::Hole", "Hole002")
hole3.Profile = sketch9
hole3.ThreadType = "None"
hole3.Diameter = Q("0.177 in")
hole3.DepthType = "Dimension"
hole3.Depth = Q("1 in")
hole3.DrillPoint = "Angled"
hole3.DrillPointAngle = 118

sketch10 = body.newObject("Sketcher::SketchObject", "Sketch009")
sketch10.AttachmentSupport = (doc.getObject("XY_Plane"), [""])
sketch10.MapMode = "FlatFace"
sketch10.addGeometry([
    Part.LineSegment(App.Vector(22.86, 0, 0), App.Vector(22.86, 69.85, 0)),
    Part.LineSegment(App.Vector(22.86, 69.85, 0), App.Vector(279.4, 69.85, 0)),
    Part.LineSegment(App.Vector(279.4, 69.85, 0), App.Vector(279.4, 0, 0)),
    Part.LineSegment(App.Vector(279.4, 0, 0), App.Vector(22.86, 0, 0)),
], False)
sketch10.addConstraint([
    Sketcher.Constraint("Coincident", 0, 2, 1, 1),
    Sketcher.Constraint("Coincident", 1, 2, 2, 1),
    Sketcher.Constraint("Coincident", 2, 2, 3, 1),
    Sketcher.Constraint("Coincident", 3, 2, 0, 1),
    Sketcher.Constraint("Vertical", 0),
    Sketcher.Constraint("Horizontal", 1),
    Sketcher.Constraint("Vertical", 2),
    Sketcher.Constraint("Horizontal", 3),
    Sketcher.Constraint("PointOnObject", 2, 2, -1),
    Sketcher.Constraint("DistanceX", 1, 1, 1, 2, Q("10.1 in")),
    Sketcher.Constraint("DistanceX", -1, 1, 1, 2, Q("11 in")),
    Sketcher.Constraint("DistanceY", 0, 1, 0, 2, Q("2.75 in")),
])
pocket6 = body.newObject("PartDesign::Pocket", "Pocket005")
pocket6.Profile = sketch10
pocket6.Length = Q("0.25 in")
pocket6.Reversed = True

sketch11 = body.newObject("Sketcher::SketchObject", "Sketch010")
sketch11.AttachmentSupport = (doc.getObject("XY_Plane"), [""])
sketch11.MapMode = "FlatFace"
sketch11.AttachmentOffset = App.Placement(App.Vector(0, 0, 0.25 * 25.4), App.Rotation())
sketch11.addGeometry([
    Part.Circle(App.Vector(38.1, 82.55, 0), App.Vector(0, 0, 1), 2.2479),
    Part.Circle(App.Vector(63.5, 82.55, 0), App.Vector(0, 0, 1), 2.2479),
    Part.Circle(App.Vector(88.9, 82.55, 0), App.Vector(0, 0, 1), 2.2479),
    Part.Circle(App.Vector(114.3, 82.55, 0), App.Vector(0, 0, 1), 2.2479),
    Part.Circle(App.Vector(190.5, 82.55, 0), App.Vector(0, 0, 1), 2.2479),
    Part.Circle(App.Vector(215.9, 82.55, 0), App.Vector(0, 0, 1), 2.2479),
    Part.Circle(App.Vector(241.3, 82.55, 0), App.Vector(0, 0, 1), 2.2479),
    Part.Circle(App.Vector(266.7, 82.55, 0), App.Vector(0, 0, 1), 2.2479),
], False)
sketch11.addConstraint([
    Sketcher.Constraint("Equal", 0, 1),
    Sketcher.Constraint("Equal", 1, 2),
    Sketcher.Constraint("Equal", 2, 3),
    Sketcher.Constraint("Equal", 3, 4),
    Sketcher.Constraint("Equal", 4, 5),
    Sketcher.Constraint("Equal", 5, 6),
    Sketcher.Constraint("Equal", 6, 7),
    Sketcher.Constraint("Horizontal", 0, 3, 1, 3),
    Sketcher.Constraint("Horizontal", 1, 3, 2, 3),
    Sketcher.Constraint("Horizontal", 2, 3, 3, 3),
    Sketcher.Constraint("Horizontal", 3, 3, 4, 3),
    Sketcher.Constraint("Horizontal", 4, 3, 5, 3),
    Sketcher.Constraint("Horizontal", 5, 3, 6, 3),
    Sketcher.Constraint("Horizontal", 6, 3, 7, 3),
    Sketcher.Constraint("Diameter", 0, Q("0.177 in")),
    Sketcher.Constraint("DistanceX", 0, 3, 1, 3, Q("1 in")),
    Sketcher.Constraint("DistanceX", 1, 3, 2, 3, Q("1 in")),
    Sketcher.Constraint("DistanceX", 2, 3, 3, 3, Q("1 in")),
    Sketcher.Constraint("DistanceX", 3, 3, 4, 3, Q("3 in")),
    Sketcher.Constraint("DistanceX", 4, 3, 5, 3, Q("1 in")),
    Sketcher.Constraint("DistanceX", 5, 3, 6, 3, Q("1 in")),
    Sketcher.Constraint("DistanceX", 6, 3, 7, 3, Q("1 in")),
    Sketcher.Constraint("DistanceX", -1, 1, 0, 3, Q("1.5 in")),
    Sketcher.Constraint("DistanceY", -1, 1, 0, 3, Q("3.25 in")),
])
doc.recompute()
hole4 = body.newObject("PartDesign::Hole", "Hole003")
hole4.Profile = sketch11
hole4.ThreadType = "None"
hole4.Diameter = Q("0.177 in")
hole4.DepthType = "Dimension"
hole4.Depth = Q("1 in")
hole4.DrillPoint = "Angled"
hole4.DrillPointAngle = 118

doc.recompute()
